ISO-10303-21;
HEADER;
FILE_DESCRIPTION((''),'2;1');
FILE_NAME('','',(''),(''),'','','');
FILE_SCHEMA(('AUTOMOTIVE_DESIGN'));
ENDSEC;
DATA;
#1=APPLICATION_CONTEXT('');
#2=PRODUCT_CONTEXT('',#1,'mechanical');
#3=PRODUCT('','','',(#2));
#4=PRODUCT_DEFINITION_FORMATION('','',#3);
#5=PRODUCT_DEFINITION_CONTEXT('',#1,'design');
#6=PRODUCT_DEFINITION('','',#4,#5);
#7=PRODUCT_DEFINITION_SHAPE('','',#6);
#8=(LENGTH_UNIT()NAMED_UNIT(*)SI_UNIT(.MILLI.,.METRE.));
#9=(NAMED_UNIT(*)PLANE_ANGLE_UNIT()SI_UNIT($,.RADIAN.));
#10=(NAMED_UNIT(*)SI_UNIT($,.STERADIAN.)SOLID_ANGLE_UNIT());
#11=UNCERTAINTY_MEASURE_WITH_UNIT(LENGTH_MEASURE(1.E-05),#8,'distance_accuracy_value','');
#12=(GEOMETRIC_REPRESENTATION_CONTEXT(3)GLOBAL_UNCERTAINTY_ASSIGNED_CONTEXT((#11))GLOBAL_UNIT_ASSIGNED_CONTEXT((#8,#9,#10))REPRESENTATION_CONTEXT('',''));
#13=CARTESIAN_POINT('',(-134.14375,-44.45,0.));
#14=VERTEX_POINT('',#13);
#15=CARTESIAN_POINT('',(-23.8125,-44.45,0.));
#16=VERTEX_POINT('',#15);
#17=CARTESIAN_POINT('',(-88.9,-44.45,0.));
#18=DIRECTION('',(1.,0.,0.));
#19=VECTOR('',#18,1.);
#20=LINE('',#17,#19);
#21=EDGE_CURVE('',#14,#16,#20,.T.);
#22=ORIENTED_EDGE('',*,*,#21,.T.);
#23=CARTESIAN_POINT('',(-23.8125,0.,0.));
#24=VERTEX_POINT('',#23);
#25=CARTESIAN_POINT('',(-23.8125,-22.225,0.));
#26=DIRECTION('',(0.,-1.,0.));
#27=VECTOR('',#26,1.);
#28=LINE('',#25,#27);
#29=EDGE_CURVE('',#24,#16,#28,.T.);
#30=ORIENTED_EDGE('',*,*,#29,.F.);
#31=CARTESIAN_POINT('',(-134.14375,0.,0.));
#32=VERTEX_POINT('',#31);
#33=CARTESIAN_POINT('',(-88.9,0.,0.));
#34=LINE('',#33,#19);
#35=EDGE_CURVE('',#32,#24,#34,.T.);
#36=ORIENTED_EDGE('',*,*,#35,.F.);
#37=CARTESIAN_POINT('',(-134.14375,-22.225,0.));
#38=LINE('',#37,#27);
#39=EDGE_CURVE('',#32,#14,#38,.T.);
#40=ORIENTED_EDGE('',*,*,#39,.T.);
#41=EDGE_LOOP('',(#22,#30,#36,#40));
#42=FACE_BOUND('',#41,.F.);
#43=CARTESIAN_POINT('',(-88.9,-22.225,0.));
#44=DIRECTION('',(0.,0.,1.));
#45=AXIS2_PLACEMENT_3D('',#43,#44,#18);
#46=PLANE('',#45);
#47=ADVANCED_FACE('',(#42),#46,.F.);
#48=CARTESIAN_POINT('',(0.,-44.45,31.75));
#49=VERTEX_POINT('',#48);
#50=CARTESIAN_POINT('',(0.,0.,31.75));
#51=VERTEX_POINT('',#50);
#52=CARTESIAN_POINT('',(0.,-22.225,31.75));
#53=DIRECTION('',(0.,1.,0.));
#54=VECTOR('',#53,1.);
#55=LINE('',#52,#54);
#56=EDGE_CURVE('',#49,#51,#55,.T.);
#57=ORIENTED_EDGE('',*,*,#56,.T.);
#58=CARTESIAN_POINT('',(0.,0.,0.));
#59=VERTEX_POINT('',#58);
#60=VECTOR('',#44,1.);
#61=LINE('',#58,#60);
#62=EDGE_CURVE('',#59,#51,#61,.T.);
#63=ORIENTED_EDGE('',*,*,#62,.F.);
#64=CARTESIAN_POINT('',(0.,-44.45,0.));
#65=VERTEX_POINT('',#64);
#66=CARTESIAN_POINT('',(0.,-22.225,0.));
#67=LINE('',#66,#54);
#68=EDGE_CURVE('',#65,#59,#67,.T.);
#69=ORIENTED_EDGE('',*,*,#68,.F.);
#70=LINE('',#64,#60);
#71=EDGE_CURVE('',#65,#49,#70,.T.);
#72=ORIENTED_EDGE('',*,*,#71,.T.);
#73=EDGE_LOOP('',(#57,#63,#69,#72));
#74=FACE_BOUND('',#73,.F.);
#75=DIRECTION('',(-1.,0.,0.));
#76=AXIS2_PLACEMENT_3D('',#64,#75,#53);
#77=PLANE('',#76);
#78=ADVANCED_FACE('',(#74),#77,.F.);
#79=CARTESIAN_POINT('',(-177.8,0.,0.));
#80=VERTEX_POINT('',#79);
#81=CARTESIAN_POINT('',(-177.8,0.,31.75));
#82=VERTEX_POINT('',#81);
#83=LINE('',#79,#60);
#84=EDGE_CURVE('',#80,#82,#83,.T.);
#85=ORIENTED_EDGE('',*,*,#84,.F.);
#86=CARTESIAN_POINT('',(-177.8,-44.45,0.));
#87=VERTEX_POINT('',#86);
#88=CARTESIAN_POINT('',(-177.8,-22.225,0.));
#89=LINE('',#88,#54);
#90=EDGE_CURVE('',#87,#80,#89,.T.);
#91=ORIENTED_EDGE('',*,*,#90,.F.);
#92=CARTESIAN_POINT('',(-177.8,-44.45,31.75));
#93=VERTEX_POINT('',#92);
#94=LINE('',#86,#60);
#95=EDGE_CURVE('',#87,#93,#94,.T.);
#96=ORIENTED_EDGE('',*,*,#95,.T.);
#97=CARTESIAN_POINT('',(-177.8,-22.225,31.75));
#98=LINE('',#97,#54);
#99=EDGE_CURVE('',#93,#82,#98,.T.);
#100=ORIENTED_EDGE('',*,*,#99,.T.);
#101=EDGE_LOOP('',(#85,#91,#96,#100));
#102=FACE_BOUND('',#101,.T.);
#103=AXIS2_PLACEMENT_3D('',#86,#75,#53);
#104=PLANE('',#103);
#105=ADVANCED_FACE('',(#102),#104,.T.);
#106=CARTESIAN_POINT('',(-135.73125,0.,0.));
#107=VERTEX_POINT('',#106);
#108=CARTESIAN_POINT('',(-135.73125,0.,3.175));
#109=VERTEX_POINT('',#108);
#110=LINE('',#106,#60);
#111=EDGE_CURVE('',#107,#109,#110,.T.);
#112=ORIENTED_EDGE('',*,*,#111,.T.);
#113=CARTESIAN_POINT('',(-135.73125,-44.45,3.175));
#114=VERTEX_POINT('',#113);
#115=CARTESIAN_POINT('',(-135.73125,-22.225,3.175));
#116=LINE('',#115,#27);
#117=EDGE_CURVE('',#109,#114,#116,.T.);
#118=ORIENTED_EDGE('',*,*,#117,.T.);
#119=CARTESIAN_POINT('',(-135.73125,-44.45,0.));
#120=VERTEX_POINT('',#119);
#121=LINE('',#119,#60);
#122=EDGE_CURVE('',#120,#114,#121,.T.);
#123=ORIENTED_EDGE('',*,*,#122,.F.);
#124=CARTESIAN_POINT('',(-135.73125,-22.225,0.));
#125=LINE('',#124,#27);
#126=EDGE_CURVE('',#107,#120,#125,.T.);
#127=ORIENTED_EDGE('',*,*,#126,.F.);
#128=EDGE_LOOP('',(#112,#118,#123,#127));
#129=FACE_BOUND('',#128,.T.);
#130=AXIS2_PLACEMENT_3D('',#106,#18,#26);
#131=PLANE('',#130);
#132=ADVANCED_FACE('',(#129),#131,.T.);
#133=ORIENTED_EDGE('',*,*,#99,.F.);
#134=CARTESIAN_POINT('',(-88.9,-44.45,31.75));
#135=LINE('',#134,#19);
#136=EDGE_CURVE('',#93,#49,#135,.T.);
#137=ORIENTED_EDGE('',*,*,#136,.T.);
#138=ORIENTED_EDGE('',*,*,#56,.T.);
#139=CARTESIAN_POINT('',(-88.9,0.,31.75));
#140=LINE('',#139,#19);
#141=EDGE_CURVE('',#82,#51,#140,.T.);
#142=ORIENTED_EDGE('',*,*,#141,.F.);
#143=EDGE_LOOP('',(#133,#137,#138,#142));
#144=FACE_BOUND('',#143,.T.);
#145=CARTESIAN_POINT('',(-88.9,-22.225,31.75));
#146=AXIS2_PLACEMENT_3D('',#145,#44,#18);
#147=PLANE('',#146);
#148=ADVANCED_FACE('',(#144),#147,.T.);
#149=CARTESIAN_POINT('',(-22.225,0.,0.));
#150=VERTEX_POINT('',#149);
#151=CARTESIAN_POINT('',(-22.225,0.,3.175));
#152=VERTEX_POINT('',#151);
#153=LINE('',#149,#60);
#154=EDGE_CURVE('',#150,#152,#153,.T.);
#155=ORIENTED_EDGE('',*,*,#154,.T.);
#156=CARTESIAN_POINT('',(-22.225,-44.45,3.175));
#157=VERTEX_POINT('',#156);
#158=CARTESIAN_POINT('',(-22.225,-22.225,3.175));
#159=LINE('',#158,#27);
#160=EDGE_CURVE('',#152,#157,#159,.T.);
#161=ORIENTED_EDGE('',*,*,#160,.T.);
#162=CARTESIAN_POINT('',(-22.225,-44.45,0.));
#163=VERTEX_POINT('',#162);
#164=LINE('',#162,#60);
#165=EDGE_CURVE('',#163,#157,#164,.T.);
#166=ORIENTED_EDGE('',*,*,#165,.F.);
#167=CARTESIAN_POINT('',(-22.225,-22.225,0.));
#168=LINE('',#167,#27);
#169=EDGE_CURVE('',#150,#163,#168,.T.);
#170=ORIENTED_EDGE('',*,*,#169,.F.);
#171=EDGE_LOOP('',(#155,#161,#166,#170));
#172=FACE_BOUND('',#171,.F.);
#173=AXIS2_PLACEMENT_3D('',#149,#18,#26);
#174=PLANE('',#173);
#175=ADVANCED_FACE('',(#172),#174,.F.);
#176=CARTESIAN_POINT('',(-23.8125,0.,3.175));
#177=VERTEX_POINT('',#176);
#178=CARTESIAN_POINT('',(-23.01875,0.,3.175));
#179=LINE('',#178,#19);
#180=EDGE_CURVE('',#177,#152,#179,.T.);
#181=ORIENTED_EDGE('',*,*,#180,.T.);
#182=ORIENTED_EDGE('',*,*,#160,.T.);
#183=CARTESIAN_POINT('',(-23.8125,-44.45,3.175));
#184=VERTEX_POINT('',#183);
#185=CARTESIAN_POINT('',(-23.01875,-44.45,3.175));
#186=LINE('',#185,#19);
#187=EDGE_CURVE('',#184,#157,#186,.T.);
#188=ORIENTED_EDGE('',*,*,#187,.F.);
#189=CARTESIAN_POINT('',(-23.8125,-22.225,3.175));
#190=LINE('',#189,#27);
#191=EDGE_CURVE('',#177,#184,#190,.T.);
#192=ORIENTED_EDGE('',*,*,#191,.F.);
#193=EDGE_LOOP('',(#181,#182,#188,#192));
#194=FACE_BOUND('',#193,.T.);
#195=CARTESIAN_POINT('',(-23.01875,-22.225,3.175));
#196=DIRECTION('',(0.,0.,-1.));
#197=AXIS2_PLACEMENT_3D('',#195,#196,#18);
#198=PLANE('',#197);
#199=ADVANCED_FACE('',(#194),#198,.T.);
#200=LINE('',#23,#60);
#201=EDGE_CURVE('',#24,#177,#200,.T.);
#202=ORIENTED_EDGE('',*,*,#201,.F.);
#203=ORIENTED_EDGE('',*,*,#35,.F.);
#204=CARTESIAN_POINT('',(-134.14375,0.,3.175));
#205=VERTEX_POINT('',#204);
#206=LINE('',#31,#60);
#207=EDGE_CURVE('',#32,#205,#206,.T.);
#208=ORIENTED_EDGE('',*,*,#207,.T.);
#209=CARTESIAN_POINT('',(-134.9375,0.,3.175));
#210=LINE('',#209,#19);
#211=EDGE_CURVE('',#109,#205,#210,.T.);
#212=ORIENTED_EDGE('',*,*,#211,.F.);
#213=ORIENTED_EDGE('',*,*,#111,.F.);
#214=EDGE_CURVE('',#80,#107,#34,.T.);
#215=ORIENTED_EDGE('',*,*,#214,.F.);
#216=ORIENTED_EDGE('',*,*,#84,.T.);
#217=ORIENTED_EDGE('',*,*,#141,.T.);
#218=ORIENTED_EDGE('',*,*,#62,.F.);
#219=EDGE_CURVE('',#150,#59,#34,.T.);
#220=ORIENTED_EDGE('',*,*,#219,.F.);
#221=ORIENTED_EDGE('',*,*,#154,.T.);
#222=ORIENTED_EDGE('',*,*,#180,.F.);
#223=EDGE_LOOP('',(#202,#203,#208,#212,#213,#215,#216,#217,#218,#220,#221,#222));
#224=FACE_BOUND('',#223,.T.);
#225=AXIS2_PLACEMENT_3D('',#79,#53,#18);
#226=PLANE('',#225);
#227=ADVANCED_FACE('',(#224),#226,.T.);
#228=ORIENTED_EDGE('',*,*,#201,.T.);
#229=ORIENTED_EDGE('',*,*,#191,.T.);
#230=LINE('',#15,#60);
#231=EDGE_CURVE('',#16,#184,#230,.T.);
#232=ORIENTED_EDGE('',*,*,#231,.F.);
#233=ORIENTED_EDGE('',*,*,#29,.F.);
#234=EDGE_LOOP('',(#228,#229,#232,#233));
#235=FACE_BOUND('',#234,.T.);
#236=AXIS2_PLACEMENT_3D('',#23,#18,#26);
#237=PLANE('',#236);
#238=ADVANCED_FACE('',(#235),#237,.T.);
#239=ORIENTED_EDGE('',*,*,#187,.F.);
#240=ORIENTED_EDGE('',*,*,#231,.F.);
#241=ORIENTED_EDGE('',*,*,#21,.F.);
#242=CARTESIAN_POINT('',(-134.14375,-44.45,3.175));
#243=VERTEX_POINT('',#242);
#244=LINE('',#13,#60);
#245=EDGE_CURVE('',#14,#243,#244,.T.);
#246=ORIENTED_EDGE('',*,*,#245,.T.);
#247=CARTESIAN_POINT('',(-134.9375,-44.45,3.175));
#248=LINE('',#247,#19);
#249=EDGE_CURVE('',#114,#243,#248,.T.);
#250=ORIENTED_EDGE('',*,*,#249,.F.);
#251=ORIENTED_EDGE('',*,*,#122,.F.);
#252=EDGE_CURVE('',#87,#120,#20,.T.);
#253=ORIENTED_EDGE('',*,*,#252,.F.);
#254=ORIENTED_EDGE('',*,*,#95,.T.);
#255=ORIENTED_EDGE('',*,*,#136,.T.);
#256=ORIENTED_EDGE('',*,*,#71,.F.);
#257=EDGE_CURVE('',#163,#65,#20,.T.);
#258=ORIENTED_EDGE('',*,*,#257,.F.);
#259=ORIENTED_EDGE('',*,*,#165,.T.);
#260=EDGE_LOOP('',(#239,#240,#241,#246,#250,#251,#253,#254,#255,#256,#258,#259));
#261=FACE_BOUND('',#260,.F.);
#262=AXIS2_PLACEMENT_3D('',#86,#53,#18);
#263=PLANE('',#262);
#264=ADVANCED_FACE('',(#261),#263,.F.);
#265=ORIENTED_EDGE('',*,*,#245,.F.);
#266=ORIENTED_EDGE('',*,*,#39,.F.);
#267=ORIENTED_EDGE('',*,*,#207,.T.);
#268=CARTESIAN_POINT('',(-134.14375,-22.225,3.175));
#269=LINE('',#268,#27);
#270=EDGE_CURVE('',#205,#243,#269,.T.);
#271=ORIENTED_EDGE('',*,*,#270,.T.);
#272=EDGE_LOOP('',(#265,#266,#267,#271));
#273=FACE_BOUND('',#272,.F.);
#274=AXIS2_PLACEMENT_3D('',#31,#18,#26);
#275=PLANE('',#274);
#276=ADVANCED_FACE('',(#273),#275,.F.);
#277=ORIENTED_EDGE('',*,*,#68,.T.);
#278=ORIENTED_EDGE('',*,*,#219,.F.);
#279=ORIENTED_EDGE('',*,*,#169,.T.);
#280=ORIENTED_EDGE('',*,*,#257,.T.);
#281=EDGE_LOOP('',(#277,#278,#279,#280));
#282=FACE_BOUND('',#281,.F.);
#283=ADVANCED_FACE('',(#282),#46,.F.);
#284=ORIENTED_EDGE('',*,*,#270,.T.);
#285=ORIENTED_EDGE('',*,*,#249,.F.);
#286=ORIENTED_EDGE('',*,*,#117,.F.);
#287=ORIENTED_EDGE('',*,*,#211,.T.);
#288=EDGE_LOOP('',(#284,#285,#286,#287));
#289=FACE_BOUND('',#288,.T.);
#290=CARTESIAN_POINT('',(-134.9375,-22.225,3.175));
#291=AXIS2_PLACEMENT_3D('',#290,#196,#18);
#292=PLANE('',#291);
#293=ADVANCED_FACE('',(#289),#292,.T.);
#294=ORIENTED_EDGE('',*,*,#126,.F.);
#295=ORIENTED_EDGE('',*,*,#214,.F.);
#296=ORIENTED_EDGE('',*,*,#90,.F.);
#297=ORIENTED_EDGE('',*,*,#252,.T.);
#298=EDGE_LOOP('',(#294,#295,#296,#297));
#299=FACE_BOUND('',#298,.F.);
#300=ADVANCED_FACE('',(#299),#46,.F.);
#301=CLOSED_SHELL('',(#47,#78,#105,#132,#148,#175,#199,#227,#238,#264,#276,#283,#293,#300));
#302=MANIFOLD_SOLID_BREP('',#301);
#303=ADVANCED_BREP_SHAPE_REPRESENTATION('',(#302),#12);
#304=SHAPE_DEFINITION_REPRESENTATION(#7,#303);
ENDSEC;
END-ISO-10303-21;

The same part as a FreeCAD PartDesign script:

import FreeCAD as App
import Part
import Sketcher
Q = App.Units.Quantity


def add_polygon(sketch, points):
    """Adds a closed chain of lines whose ends are joined by coincident constraints."""
    first, n = sketch.GeometryCount, len(points)
    for a, b in zip(points, points[1:] + points[:1]):
        sketch.addGeometry(Part.LineSegment(App.Vector(*a, 0), App.Vector(*b, 0)), False)
    for i in range(n):
        sketch.addConstraint(Sketcher.Constraint("Coincident", first + i, 2, first + (i + 1) % n, 1))

doc = App.newDocument("Part")
body = doc.addObject("PartDesign::Body", "Body")

# Sketch on XY plane
sketch1 = doc.addObject("Sketcher::SketchObject", "Sketch")
body.addObject(sketch1)
sketch1.AttachmentSupport = (doc.XY_Plane, [""])
sketch1.MapMode = "FlatFace"
add_polygon(sketch1, [(-178, 0), (-178, -44), (0, -44), (0, 0)])  # lines 0-3
sketch1.addConstraint([
    Sketcher.Constraint("Vertical", 0),
    Sketcher.Constraint("Horizontal", 1),
    Sketcher.Constraint("Vertical", 2),
    Sketcher.Constraint("Horizontal", 3),
    Sketcher.Constraint("Coincident", 2, 2, -1, 1),
    Sketcher.Constraint("DistanceX", 1, 1, 1, 2, Q("7 in")),
    Sketcher.Constraint("DistanceY", 0, 2, 0, 1, Q("1.75 in")),
])
pad1 = doc.addObject("PartDesign::Pad", "Pad")
body.addObject(pad1)
pad1.Profile = sketch1
pad1.Length = Q("1.25 in")

# Sketch on XY plane
sketch2 = doc.addObject("Sketcher::SketchObject", "Sketch001")
body.addObject(sketch2)
sketch2.AttachmentSupport = (doc.XY_Plane, [""])
sketch2.MapMode = "FlatFace"
add_polygon(sketch2, [(-23.8, -44.5), (-23.8, 0), (-22.2, 0), (-22.2, -44.5)])  # lines 0-3
add_polygon(sketch2, [(-135.7, -44.5), (-135.7, 0), (-134.1, 0), (-134.1, -44.5)])  # lines 4-7
sketch2.addConstraint([
    Sketcher.Constraint("Vertical", 0),
    Sketcher.Constraint("Horizontal", 1),
    Sketcher.Constraint("Vertical", 2),
    Sketcher.Constraint("Horizontal", 3),
    Sketcher.Constraint("Vertical", 4),
    Sketcher.Constraint("Horizontal", 5),
    Sketcher.Constraint("Vertical", 6),
    Sketcher.Constraint("Horizontal", 7),
    Sketcher.Constraint("PointOnObject", 0, 2, -1),
    Sketcher.Constraint("PointOnObject", 4, 2, -1),
    Sketcher.Constraint("Horizontal", 3, 2, 6, 2),
    Sketcher.Constraint("Equal", 3, 5),
    Sketcher.Constraint("DistanceY", 0, 1, 0, 2, Q("1.75 in")),
    Sketcher.Constraint("DistanceX", 1, 1, 1, 2, Q("0.0625 in")),
    Sketcher.Constraint("DistanceX", 0, 2, -1, 1, Q("0.9375 in")),
    Sketcher.Constraint("DistanceX", 4, 2, -1, 1, Q("5.34375 in")),
])
pocket1 = doc.addObject("PartDesign::Pocket", "Pocket")
body.addObject(pocket1)
pocket1.Profile = sketch2
pocket1.Length = Q("0.125 in")
pocket1.Reversed = True

doc.recompute()
